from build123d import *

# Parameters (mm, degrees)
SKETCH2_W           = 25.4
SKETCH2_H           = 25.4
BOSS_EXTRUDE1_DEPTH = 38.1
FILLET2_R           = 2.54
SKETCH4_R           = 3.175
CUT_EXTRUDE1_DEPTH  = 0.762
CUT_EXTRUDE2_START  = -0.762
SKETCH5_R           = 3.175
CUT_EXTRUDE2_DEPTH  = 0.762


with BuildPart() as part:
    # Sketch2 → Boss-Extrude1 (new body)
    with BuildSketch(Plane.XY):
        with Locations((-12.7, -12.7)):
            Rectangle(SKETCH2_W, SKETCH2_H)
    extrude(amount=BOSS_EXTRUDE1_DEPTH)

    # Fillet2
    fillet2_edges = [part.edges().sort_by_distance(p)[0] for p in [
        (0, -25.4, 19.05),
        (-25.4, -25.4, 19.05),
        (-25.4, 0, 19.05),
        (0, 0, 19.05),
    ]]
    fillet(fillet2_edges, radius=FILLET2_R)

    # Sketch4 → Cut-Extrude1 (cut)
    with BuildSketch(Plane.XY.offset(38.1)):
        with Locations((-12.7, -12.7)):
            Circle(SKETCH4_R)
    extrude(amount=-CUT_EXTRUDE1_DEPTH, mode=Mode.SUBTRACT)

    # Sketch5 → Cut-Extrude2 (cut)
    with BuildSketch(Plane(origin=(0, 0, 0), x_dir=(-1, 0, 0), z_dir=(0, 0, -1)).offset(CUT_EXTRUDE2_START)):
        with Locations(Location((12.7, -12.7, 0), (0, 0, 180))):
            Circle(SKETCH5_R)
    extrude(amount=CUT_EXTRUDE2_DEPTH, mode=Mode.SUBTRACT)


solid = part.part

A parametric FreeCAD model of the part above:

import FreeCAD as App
import Part
import Sketcher
Q = App.Units.Quantity


def edges_at(feature, points):
    """Names of the edges that pass closest to the given points."""
    edges = feature.Shape.Edges
    near = lambda p: min(range(len(edges)), key=lambda i: edges[i].distToShape(Part.Vertex(*p))[0])
    return sorted({f"Edge{near(p) + 1}" for p in points})

doc = App.newDocument("Part")
body = doc.addObject("PartDesign::Body", "Body")

# Sketch on XY plane
sketch1 = body.newObject("Sketcher::SketchObject", "Sketch")
sketch1.AttachmentSupport = (doc.getObject("XY_Plane"), [""])
sketch1.MapMode = "FlatFace"
sketch1.addGeometry(Part.LineSegment(App.Vector(-25, 0, 0), App.Vector(-25, -25, 0)), False)
sketch1.addGeometry(Part.LineSegment(App.Vector(-25, -25, 0), App.Vector(0, -25, 0)), False)
sketch1.addGeometry(Part.LineSegment(App.Vector(0, -25, 0), App.Vector(0, 0, 0)), False)
sketch1.addGeometry(Part.LineSegment(App.Vector(0, 0, 0), App.Vector(-25, 0, 0)), False)
sketch1.addConstraint(Sketcher.Constraint("Coincident", 0, 2, 1, 1))
sketch1.addConstraint(Sketcher.Constraint("Coincident", 1, 2, 2, 1))
sketch1.addConstraint(Sketcher.Constraint("Coincident", 2, 2, 3, 1))
sketch1.addConstraint(Sketcher.Constraint("Coincident", 3, 2, 0, 1))
sketch1.addConstraint(Sketcher.Constraint("Vertical", 0))
sketch1.addConstraint(Sketcher.Constraint("Horizontal", 1))
sketch1.addConstraint(Sketcher.Constraint("Vertical", 2))
sketch1.addConstraint(Sketcher.Constraint("Horizontal", 3))
sketch1.addConstraint(Sketcher.Constraint("Coincident", 2, 2, -1, 1))
sketch1.addConstraint(Sketcher.Constraint("Equal", 3, 0))
sketch1.addConstraint(Sketcher.Constraint("DistanceX", 1, 1, 1, 2, Q("1 in")))
pad1 = body.newObject("PartDesign::Pad", "Pad")
pad1.Profile = sketch1
pad1.Length = Q("1.5 in")
doc.recompute()

fillet = body.newObject("PartDesign::Fillet", "Fillet")
fillet.Base = (pad1, edges_at(pad1, [
    (0, -25.4, 19.05),
    (-25.4, -25.4, 19.05),
    (-25.4, 0, 19.05),
    (0, 0, 19.05),
]))
fillet.Radius = Q("0.1 in")

# Sketch on XY plane
sketch2 = body.newObject("Sketcher::SketchObject", "Sketch001")
sketch2.AttachmentSupport = (doc.getObject("XY_Plane"), [""])
sketch2.MapMode = "FlatFace"
sketch2.AttachmentOffset = App.Placement(App.Vector(0, 0, 1.5 * 25.4), App.Rotation())
sketch2.addGeometry(Part.Circle(App.Vector(-12.7, -12.7, 0), App.Vector(0, 0, 1), 3.2), False)
sketch2.addConstraint(Sketcher.Constraint("Diameter", 0, Q("0.25 in")))
sketch2.addConstraint(Sketcher.Constraint("DistanceX", 0, 3, -1, 1, Q("0.5 in")))
sketch2.addConstraint(Sketcher.Constraint("DistanceY", 0, 3, -1, 1, Q("0.5 in")))
pocket1 = body.newObject("PartDesign::Pocket", "Pocket")
pocket1.Profile = sketch2
pocket1.Length = Q("0.03 in")

# Sketch on XY plane
sketch3 = body.newObject("Sketcher::SketchObject", "Sketch002")
sketch3.AttachmentSupport = (doc.getObject("XY_Plane"), [""])
sketch3.MapMode = "FlatFace"
sketch3.AttachmentOffset = App.Placement(App.Vector(0, 0, 0.03 * 25.4), App.Rotation())
sketch3.addGeometry(Part.Circle(App.Vector(-12.7, -12.7, 0), App.Vector(0, 0, 1), 3.2), False)
sketch3.addConstraint(Sketcher.Constraint("Diameter", 0, Q("0.25 in")))
sketch3.addConstraint(Sketcher.Constraint("DistanceX", 0, 3, -1, 1, Q("0.5 in")))
sketch3.addConstraint(Sketcher.Constraint("DistanceY", 0, 3, -1, 1, Q("0.5 in")))
pocket2 = body.newObject("PartDesign::Pocket", "Pocket001")
pocket2.Profile = sketch3
pocket2.Length = Q("0.03 in")

doc.recompute()
